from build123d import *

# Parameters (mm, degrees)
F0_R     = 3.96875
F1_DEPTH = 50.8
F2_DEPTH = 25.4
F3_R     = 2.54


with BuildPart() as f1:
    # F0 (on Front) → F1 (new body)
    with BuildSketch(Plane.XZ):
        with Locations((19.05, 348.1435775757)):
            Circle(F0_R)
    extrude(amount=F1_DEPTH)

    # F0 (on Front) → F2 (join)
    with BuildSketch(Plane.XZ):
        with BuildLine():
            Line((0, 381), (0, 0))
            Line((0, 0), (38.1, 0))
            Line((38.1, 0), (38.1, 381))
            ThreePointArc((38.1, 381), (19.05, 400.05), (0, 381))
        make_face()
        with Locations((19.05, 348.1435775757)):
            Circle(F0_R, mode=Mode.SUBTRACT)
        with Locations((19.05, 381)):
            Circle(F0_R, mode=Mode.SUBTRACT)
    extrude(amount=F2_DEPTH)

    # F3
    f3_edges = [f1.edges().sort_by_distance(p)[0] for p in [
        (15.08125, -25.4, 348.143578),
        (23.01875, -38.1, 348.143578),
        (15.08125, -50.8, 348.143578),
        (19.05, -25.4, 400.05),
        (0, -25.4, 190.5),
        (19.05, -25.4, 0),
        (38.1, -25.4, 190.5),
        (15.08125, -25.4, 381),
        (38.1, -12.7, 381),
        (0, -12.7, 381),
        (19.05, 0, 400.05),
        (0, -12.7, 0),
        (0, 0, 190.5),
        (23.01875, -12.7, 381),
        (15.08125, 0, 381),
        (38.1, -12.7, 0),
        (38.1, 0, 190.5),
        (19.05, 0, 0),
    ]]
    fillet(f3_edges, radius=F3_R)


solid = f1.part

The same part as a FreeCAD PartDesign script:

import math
import FreeCAD as App
import Part
import Sketcher
from FreeCAD import Vector
Q = App.Units.Quantity

doc = App.newDocument("Part")
body = doc.addObject("PartDesign::Body", "Body")

# Sketch on XZ plane
sketch1 = body.newObject("Sketcher::SketchObject", "Sketch")
sketch1.AttachmentSupport = (doc.getObject("XZ_Plane"), [""])
sketch1.MapMode = "FlatFace"
sketch1.addGeometry(Part.Circle(Vector(19.05, 348.143578, 0), Vector(0, 0, 1), 3.96875), False)
sketch1.addConstraint([
    Sketcher.Constraint("Diameter", 0, Q("0.3125 in")),
    Sketcher.Constraint("DistanceX", -1, 1, 0, 3, Q("0.75 in")),
    Sketcher.Constraint("DistanceY", -1, 1, 0, 3, 348.143578),
])
pad1 = body.newObject("PartDesign::Pad", "Pad")
pad1.Profile = sketch1
pad1.Length = Q("2 in")

# Sketch on XZ plane
sketch2 = body.newObject("Sketcher::SketchObject", "Sketch001")
sketch2.AttachmentSupport = (doc.getObject("XZ_Plane"), [""])
sketch2.MapMode = "FlatFace"
sketch2.addGeometry([
    Part.LineSegment(Vector(0, 381, 0), Vector(0, 0, 0)),  # 0
    Part.LineSegment(Vector(0, 0, 0), Vector(38.1, 0, 0)),  # 1
    Part.LineSegment(Vector(38.1, 0, 0), Vector(38.1, 381, 0)),  # 2
    Part.ArcOfCircle(Part.Circle(Vector(19.05, 381, 0), Vector(0, 0, 1), 19.05), math.radians(0), math.radians(180)),  # 3
    Part.Circle(Vector(19.05, 348.143578, 0), Vector(0, 0, 1), 3.96875),  # 4
    Part.Circle(Vector(19.05, 381, 0), Vector(0, 0, 1), 3.96875),  # 5
], False)
sketch2.addConstraint([
    Sketcher.Constraint("Coincident", 0, 2, 1, 1),
    Sketcher.Constraint("Coincident", 1, 2, 2, 1),
    Sketcher.Constraint("Tangent", 2, 2, 3, 1),
    Sketcher.Constraint("Tangent", 3, 2, 0, 1),
    Sketcher.Constraint("Vertical", 0),
    Sketcher.Constraint("Horizontal", 1),
    Sketcher.Constraint("Vertical", 2),
    Sketcher.Constraint("Coincident", 0, 2, -1, 1),
    Sketcher.Constraint("Coincident", 5, 3, 3, 3),
    Sketcher.Constraint("Equal", 4, 5),
    Sketcher.Constraint("Vertical", 3, 3, 4, 3),
    Sketcher.Constraint("DistanceY", 0, 2, 0, 1, Q("15 in")),
    Sketcher.Constraint("Radius", 3, Q("0.75 in")),
    Sketcher.Constraint("Diameter", 4, Q("0.3125 in")),
    Sketcher.Constraint("DistanceY", -1, 1, 4, 3, 348.143578),
])
pad2 = body.newObject("PartDesign::Pad", "Pad001")
pad2.Profile = sketch2
pad2.Length = Q("1 in")
doc.recompute()

fillet = body.newObject("PartDesign::Fillet", "Fillet")
fillet.Base = (pad2, ["Edge1"])
fillet.UseAllEdges = True
fillet.Radius = Q("0.1 in")

doc.recompute()
